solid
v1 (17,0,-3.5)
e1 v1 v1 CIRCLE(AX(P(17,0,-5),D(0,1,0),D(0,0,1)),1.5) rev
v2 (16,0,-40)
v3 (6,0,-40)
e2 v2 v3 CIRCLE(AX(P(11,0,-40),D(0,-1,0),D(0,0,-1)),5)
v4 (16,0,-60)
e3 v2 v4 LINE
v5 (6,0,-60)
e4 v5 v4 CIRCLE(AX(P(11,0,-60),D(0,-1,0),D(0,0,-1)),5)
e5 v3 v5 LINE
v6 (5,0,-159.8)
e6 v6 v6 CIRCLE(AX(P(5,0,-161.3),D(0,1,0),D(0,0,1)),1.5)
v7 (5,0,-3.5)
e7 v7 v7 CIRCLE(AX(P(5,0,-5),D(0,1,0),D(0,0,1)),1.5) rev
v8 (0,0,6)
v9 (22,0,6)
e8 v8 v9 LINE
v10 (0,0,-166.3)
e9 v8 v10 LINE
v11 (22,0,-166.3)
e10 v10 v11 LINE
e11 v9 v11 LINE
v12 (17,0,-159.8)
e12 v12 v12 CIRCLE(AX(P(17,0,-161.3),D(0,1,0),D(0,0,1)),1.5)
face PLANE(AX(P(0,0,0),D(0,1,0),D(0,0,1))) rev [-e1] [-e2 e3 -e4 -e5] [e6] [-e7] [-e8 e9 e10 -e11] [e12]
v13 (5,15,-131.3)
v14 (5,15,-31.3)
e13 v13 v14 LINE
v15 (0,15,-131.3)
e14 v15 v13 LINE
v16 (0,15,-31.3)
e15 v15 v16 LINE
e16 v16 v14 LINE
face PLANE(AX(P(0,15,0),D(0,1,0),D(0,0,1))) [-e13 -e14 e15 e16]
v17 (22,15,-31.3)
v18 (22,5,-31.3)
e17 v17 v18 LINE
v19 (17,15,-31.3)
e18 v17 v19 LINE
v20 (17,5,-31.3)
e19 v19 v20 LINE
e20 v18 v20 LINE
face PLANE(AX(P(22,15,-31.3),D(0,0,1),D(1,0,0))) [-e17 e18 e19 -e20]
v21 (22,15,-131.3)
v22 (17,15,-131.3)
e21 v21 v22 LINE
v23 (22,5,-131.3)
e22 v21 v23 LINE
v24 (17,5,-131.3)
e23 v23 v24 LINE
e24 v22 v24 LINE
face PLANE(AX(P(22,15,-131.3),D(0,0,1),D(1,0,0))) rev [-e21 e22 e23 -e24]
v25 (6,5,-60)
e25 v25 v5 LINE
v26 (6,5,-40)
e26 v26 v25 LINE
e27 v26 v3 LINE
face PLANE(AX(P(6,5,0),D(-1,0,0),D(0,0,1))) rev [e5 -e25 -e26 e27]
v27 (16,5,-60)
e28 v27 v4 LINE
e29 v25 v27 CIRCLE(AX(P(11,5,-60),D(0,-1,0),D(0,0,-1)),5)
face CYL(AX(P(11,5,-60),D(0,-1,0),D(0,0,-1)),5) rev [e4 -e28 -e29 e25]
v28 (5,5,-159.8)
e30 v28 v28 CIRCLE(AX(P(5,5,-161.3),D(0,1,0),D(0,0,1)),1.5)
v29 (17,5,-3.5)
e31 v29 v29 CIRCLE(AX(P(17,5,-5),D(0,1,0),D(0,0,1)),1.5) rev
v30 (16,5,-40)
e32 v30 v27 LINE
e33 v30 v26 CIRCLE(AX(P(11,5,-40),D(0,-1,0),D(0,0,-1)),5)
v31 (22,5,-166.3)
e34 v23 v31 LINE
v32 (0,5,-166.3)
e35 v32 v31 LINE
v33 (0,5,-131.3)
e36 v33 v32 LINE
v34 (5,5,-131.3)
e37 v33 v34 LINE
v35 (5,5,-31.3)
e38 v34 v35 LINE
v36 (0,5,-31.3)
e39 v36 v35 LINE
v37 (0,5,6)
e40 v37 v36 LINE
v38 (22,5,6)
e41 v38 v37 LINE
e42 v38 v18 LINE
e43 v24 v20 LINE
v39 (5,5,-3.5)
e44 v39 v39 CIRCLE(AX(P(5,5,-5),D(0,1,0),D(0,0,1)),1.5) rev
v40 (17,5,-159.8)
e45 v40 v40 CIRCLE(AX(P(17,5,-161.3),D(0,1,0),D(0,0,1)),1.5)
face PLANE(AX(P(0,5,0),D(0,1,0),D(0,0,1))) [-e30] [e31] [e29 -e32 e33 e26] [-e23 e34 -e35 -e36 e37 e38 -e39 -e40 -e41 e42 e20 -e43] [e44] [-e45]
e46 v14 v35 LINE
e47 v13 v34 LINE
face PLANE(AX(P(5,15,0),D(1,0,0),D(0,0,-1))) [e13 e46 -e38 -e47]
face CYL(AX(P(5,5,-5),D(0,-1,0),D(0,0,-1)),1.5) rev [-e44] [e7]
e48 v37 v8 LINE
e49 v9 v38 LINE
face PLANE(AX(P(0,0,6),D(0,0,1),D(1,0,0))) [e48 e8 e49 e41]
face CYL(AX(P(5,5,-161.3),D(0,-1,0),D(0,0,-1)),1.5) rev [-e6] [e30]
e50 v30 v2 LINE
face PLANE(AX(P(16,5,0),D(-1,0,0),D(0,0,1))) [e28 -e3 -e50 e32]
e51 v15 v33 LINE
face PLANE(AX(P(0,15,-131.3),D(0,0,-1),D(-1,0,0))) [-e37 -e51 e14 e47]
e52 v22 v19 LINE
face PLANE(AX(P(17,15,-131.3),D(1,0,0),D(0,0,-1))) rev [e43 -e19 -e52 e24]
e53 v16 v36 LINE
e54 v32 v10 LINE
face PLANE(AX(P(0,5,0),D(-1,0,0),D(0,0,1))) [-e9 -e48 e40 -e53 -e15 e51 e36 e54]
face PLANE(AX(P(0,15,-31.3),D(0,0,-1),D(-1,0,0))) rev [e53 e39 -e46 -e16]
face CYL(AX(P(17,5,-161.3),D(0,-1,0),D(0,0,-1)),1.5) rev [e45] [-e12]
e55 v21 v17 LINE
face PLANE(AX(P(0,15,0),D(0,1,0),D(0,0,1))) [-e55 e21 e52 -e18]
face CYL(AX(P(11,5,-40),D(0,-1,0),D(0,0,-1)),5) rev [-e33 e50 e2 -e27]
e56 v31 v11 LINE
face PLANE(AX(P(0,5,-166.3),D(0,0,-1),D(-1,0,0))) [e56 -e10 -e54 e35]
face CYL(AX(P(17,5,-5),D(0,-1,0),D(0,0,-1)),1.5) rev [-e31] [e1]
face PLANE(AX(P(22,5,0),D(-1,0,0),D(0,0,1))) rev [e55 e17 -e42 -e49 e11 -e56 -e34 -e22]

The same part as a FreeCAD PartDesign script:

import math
import FreeCAD as App
import Part
import Sketcher
Q = App.Units.Quantity

doc = App.newDocument("Part")
body = doc.addObject("PartDesign::Body", "Body")

# Sketch on XZ plane
sketch1 = body.newObject("Sketcher::SketchObject", "Sketch")
sketch1.AttachmentSupport = (doc.getObject("XZ_Plane"), [""])
sketch1.MapMode = "FlatFace"
sketch1.addGeometry([
    Part.LineSegment(App.Vector(0, -166.3, 0), App.Vector(0, 0, 0)),  # 0
    Part.LineSegment(App.Vector(0, 0, 0), App.Vector(22, 0, 0)),  # 1
    Part.LineSegment(App.Vector(22, 0, 0), App.Vector(22, -166.3, 0)),  # 2
    Part.LineSegment(App.Vector(22, -166.3, 0), App.Vector(0, -166.3, 0)),  # 3
    Part.Circle(App.Vector(5, -5, 0), App.Vector(0, 0, 1), 1.5),  # 4
    Part.Circle(App.Vector(17, -5, 0), App.Vector(0, 0, 1), 1.5),  # 5
    Part.Circle(App.Vector(5, -161.3, 0), App.Vector(0, 0, 1), 1.5),  # 6
    Part.Circle(App.Vector(17, -161.3, 0), App.Vector(0, 0, 1), 1.5),  # 7
], False)
sketch1.addConstraint([
    Sketcher.Constraint("Coincident", 0, 2, 1, 1),
    Sketcher.Constraint("Coincident", 1, 2, 2, 1),
    Sketcher.Constraint("Coincident", 2, 2, 3, 1),
    Sketcher.Constraint("Coincident", 3, 2, 0, 1),
    Sketcher.Constraint("Vertical", 0),
    Sketcher.Constraint("Horizontal", 1),
    Sketcher.Constraint("Vertical", 2),
    Sketcher.Constraint("Horizontal", 3),
    Sketcher.Constraint("Coincident", 0, 2, -1, 1),
    Sketcher.Constraint("Equal", 4, 5),
    Sketcher.Constraint("Equal", 5, 6),
    Sketcher.Constraint("Equal", 6, 7),
    Sketcher.Constraint("Horizontal", 4, 3, 5, 3),
    Sketcher.Constraint("Horizontal", 6, 3, 7, 3),
    Sketcher.Constraint("Vertical", 4, 3, 6, 3),
    Sketcher.Constraint("Vertical", 5, 3, 7, 3),
    Sketcher.Constraint("Diameter", 4, Q("3 mm")),
    Sketcher.Constraint("DistanceX", 1, 1, 1, 2, Q("22 mm")),
    Sketcher.Constraint("DistanceY", 0, 1, 0, 2, Q("166.3 mm")),
    Sketcher.Constraint("DistanceX", -1, 1, 4, 3, Q("5 mm")),
    Sketcher.Constraint("DistanceY", 4, 3, -1, 1, Q("5 mm")),
    Sketcher.Constraint("DistanceX", -1, 1, 5, 3, Q("17 mm")),
    Sketcher.Constraint("DistanceY", 2, 2, 7, 3, Q("5 mm")),
])
pad1 = body.newObject("PartDesign::Pad", "Pad")
pad1.Profile = sketch1
pad1.Length = 5
pad1.Reversed = True

# Sketch on XZ plane
sketch2 = body.newObject("Sketcher::SketchObject", "Sketch001")
sketch2.AttachmentSupport = (doc.getObject("XZ_Plane"), [""])
sketch2.MapMode = "FlatFace"
sketch2.addGeometry([
    Part.LineSegment(App.Vector(16, -60, 0), App.Vector(16, -40, 0)),
    Part.ArcOfCircle(Part.Circle(App.Vector(11, -40, 0), App.Vector(0, 0, 1), 5), math.radians(0), math.radians(180)),
    Part.LineSegment(App.Vector(6, -40, 0), App.Vector(6, -60, 0)),
    Part.ArcOfCircle(Part.Circle(App.Vector(11, -60, 0), App.Vector(0, 0, 1), 5), math.radians(180), math.radians(360)),
], False)
sketch2.addConstraint([
    Sketcher.Constraint("Tangent", 0, 2, 1, 1),
    Sketcher.Constraint("Tangent", 1, 2, 2, 1),
    Sketcher.Constraint("Tangent", 2, 2, 3, 1),
    Sketcher.Constraint("Tangent", 3, 2, 0, 1),
    Sketcher.Constraint("Vertical", 0),
    Sketcher.Constraint("Vertical", 2),
    Sketcher.Constraint("Radius", 1, Q("5 mm")),
    Sketcher.Constraint("DistanceY", 0, 1, 0, 2, Q("20 mm")),
    Sketcher.Constraint("DistanceX", -1, 1, 1, 3, Q("11 mm")),
    Sketcher.Constraint("DistanceY", 1, 3, -1, 1, Q("40 mm")),
])
pocket1 = body.newObject("PartDesign::Pocket", "Pocket")
pocket1.Profile = sketch2
pocket1.Length = 5

# Sketch on XY plane
sketch3 = body.newObject("Sketcher::SketchObject", "Sketch002")
sketch3.AttachmentSupport = (doc.getObject("XY_Plane"), [""])
sketch3.MapMode = "FlatFace"
sketch3.addGeometry([
    Part.LineSegment(App.Vector(0, 5, 0), App.Vector(0, 0, 0)),
    Part.LineSegment(App.Vector(0, 0, 0), App.Vector(22, 0, 0)),
    Part.LineSegment(App.Vector(22, 0, 0), App.Vector(22, 5, 0)),
    Part.LineSegment(App.Vector(22, 5, 0), App.Vector(0, 5, 0)),
], False)
sketch3.addConstraint([
    Sketcher.Constraint("Coincident", 0, 2, 1, 1),
    Sketcher.Constraint("Coincident", 1, 2, 2, 1),
    Sketcher.Constraint("Coincident", 2, 2, 3, 1),
    Sketcher.Constraint("Coincident", 3, 2, 0, 1),
    Sketcher.Constraint("Vertical", 0),
    Sketcher.Constraint("Horizontal", 1),
    Sketcher.Constraint("Vertical", 2),
    Sketcher.Constraint("Horizontal", 3),
    Sketcher.Constraint("Coincident", 0, 2, -1, 1),
    Sketcher.Constraint("DistanceX", 1, 1, 1, 2, Q("22 mm")),
    Sketcher.Constraint("DistanceY", 0, 2, 0, 1, Q("5 mm")),
])
pad2 = body.newObject("PartDesign::Pad", "Pad001")
pad2.Profile = sketch3
pad2.Length = 6

# Sketch on XZ plane
sketch4 = body.newObject("Sketcher::SketchObject", "Sketch003")
sketch4.AttachmentSupport = (doc.getObject("XZ_Plane"), [""])
sketch4.MapMode = "FlatFace"
sketch4.AttachmentOffset = App.Placement(App.Vector(0, 0, -5), App.Rotation())
sketch4.addGeometry([
    Part.LineSegment(App.Vector(0, -131.3, 0), App.Vector(0, -31.3, 0)),  # 0
    Part.LineSegment(App.Vector(0, -31.3, 0), App.Vector(5, -31.3, 0)),  # 1
    Part.LineSegment(App.Vector(5, -31.3, 0), App.Vector(5, -131.3, 0)),  # 2
    Part.LineSegment(App.Vector(5, -131.3, 0), App.Vector(0, -131.3, 0)),  # 3
    Part.LineSegment(App.Vector(17, -131.3, 0), App.Vector(17, -31.3, 0)),  # 4
    Part.LineSegment(App.Vector(17, -31.3, 0), App.Vector(22, -31.3, 0)),  # 5
    Part.LineSegment(App.Vector(22, -31.3, 0), App.Vector(22, -131.3, 0)),  # 6
    Part.LineSegment(App.Vector(22, -131.3, 0), App.Vector(17, -131.3, 0)),  # 7
], False)
sketch4.addConstraint([
    Sketcher.Constraint("Coincident", 0, 2, 1, 1),
    Sketcher.Constraint("Coincident", 1, 2, 2, 1),
    Sketcher.Constraint("Coincident", 2, 2, 3, 1),
    Sketcher.Constraint("Coincident", 3, 2, 0, 1),
    Sketcher.Constraint("Coincident", 4, 2, 5, 1),
    Sketcher.Constraint("Coincident", 5, 2, 6, 1),
    Sketcher.Constraint("Coincident", 6, 2, 7, 1),
    Sketcher.Constraint("Coincident", 7, 2, 4, 1),
    Sketcher.Constraint("Vertical", 0),
    Sketcher.Constraint("Horizontal", 1),
    Sketcher.Constraint("Vertical", 2),
    Sketcher.Constraint("Horizontal", 3),
    Sketcher.Constraint("Vertical", 4),
    Sketcher.Constraint("Horizontal", 5),
    Sketcher.Constraint("Vertical", 6),
    Sketcher.Constraint("Horizontal", 7),
    Sketcher.Constraint("PointOnObject", 0, 2, -2),
    Sketcher.Constraint("Horizontal", 1, 2, 4, 2),
    Sketcher.Constraint("Horizontal", 3, 2, 6, 2),
    Sketcher.Constraint("Equal", 3, 5),
    Sketcher.Constraint("DistanceX", 1, 1, 1, 2, Q("5 mm")),
    Sketcher.Constraint("DistanceY", 0, 1, 0, 2, Q("100 mm")),
    Sketcher.Constraint("DistanceX", -1, 1, 4, 2, Q("17 mm")),
    Sketcher.Constraint("DistanceY", 0, 2, -1, 1, Q("31.3 mm")),
])
pad3 = body.newObject("PartDesign::Pad", "Pad002")
pad3.Profile = sketch4
pad3.Length = 10
pad3.Reversed = True

doc.recompute()
